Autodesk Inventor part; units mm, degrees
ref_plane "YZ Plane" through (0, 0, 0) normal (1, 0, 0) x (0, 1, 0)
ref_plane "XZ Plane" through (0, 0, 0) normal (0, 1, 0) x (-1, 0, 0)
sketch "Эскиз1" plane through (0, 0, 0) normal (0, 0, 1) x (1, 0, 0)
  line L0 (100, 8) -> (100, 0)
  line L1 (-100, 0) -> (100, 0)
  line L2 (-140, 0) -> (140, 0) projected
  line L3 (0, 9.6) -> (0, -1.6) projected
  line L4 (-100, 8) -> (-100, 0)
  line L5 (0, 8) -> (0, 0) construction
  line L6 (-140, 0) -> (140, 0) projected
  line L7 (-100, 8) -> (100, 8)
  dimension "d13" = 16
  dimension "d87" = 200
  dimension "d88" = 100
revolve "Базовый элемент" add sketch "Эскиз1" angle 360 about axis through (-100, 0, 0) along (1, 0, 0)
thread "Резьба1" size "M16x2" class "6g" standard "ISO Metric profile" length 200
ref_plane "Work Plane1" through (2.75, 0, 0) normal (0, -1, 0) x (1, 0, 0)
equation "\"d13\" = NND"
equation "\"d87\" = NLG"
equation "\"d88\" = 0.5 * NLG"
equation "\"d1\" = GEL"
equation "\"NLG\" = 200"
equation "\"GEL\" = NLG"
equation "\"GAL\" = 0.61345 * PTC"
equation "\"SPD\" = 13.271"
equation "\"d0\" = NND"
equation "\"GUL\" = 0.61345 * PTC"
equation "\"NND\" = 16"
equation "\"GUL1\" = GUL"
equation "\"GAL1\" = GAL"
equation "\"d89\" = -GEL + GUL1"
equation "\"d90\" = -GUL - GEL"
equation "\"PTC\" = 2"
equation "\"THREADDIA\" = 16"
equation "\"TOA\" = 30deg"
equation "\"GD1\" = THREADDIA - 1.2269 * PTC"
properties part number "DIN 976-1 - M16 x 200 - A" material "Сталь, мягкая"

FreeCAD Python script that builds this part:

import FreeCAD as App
import Part
import Sketcher
from FreeCAD import Vector
Q = App.Units.Quantity

doc = App.newDocument("Part")
body = doc.addObject("PartDesign::Body", "Body")

sketch1 = body.newObject("Sketcher::SketchObject", "Sketch")
sketch1.AttachmentSupport = (doc.getObject("XY_Plane"), [""])
sketch1.MapMode = "FlatFace"
sketch1.addGeometry([
    Part.LineSegment(Vector(100, 0, 0), Vector(100, 8, 0)),
    Part.LineSegment(Vector(100, 8, 0), Vector(-100, 8, 0)),
    Part.LineSegment(Vector(-100, 8, 0), Vector(-100, 0, 0)),
    Part.LineSegment(Vector(-100, 0, 0), Vector(100, 0, 0)),
], False)
sketch1.addConstraint([
    Sketcher.Constraint("Coincident", 0, 2, 1, 1),
    Sketcher.Constraint("Coincident", 1, 2, 2, 1),
    Sketcher.Constraint("Coincident", 2, 2, 3, 1),
    Sketcher.Constraint("Coincident", 3, 2, 0, 1),
    Sketcher.Constraint("Vertical", 0),
    Sketcher.Constraint("Horizontal", 1),
    Sketcher.Constraint("Vertical", 2),
    Sketcher.Constraint("Horizontal", 3),
    Sketcher.Constraint("Symmetric", 2, 2, 3, 2, -1, 1),
    Sketcher.Constraint("DistanceX", 1, 2, 1, 1, Q("200 mm")),
    Sketcher.Constraint("DistanceY", 0, 1, 0, 2, Q("8 mm")),
])
revolution = body.newObject("PartDesign::Revolution", "Revolution")
revolution.Profile = sketch1
revolution.ReferenceAxis = (sketch1, ["H_Axis"])
revolution.Angle = 360

doc.recompute()
